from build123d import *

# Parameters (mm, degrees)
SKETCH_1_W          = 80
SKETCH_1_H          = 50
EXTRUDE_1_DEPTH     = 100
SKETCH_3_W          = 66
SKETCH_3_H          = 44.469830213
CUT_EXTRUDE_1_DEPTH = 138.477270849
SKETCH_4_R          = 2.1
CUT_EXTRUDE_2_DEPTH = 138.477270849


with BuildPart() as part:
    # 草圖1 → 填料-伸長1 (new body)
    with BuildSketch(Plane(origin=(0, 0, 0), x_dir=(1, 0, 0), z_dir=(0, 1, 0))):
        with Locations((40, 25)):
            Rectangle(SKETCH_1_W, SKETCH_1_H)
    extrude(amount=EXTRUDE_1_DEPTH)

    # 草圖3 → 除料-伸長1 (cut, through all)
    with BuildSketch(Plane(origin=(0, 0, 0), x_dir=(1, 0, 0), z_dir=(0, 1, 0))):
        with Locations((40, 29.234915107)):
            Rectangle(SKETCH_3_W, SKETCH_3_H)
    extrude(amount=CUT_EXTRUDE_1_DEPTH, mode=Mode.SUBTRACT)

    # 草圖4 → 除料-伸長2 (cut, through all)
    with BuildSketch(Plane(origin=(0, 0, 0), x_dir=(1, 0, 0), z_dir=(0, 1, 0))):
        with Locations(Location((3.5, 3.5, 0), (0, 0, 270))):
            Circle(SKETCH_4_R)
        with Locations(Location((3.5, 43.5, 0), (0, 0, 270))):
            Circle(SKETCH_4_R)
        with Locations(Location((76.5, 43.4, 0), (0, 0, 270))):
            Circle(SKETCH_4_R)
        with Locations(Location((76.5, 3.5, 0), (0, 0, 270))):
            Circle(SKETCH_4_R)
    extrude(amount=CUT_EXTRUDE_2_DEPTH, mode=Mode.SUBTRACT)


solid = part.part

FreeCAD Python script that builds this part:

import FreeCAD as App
import Part
import Sketcher
from FreeCAD import Vector
Q = App.Units.Quantity

doc = App.newDocument("Part")
body = doc.addObject("PartDesign::Body", "Body")

# Sketch on XZ plane
sketch1 = body.newObject("Sketcher::SketchObject", "Sketch")
sketch1.AttachmentSupport = (doc.getObject("XZ_Plane"), [""])
sketch1.MapMode = "FlatFace"
sketch1.addGeometry([
    Part.LineSegment(Vector(0, -50, 0), Vector(0, 0, 0)),
    Part.LineSegment(Vector(0, 0, 0), Vector(80, 0, 0)),
    Part.LineSegment(Vector(80, 0, 0), Vector(80, -50, 0)),
    Part.LineSegment(Vector(80, -50, 0), Vector(0, -50, 0)),
], False)
sketch1.addConstraint([
    Sketcher.Constraint("Coincident", 0, 2, 1, 1),
    Sketcher.Constraint("Coincident", 1, 2, 2, 1),
    Sketcher.Constraint("Coincident", 2, 2, 3, 1),
    Sketcher.Constraint("Coincident", 3, 2, 0, 1),
    Sketcher.Constraint("Vertical", 0),
    Sketcher.Constraint("Horizontal", 1),
    Sketcher.Constraint("Vertical", 2),
    Sketcher.Constraint("Horizontal", 3),
    Sketcher.Constraint("Coincident", 0, 2, -1, 1),
    Sketcher.Constraint("DistanceX", 1, 1, 1, 2, Q("80 mm")),
    Sketcher.Constraint("DistanceY", 0, 1, 0, 2, Q("50 mm")),
])
pad1 = body.newObject("PartDesign::Pad", "Pad")
pad1.Profile = sketch1
pad1.Length = 100
pad1.Reversed = True

# Sketch on XZ plane
sketch2 = body.newObject("Sketcher::SketchObject", "Sketch001")
sketch2.AttachmentSupport = (doc.getObject("XZ_Plane"), [""])
sketch2.MapMode = "FlatFace"
sketch2.addGeometry([
    Part.LineSegment(Vector(7, -51.46983, 0), Vector(7, -7, 0)),
    Part.LineSegment(Vector(7, -7, 0), Vector(73, -7, 0)),
    Part.LineSegment(Vector(73, -7, 0), Vector(73, -51.46983, 0)),
    Part.LineSegment(Vector(73, -51.46983, 0), Vector(7, -51.46983, 0)),
], False)
sketch2.addConstraint([
    Sketcher.Constraint("Coincident", 0, 2, 1, 1),
    Sketcher.Constraint("Coincident", 1, 2, 2, 1),
    Sketcher.Constraint("Coincident", 2, 2, 3, 1),
    Sketcher.Constraint("Coincident", 3, 2, 0, 1),
    Sketcher.Constraint("Vertical", 0),
    Sketcher.Constraint("Horizontal", 1),
    Sketcher.Constraint("Vertical", 2),
    Sketcher.Constraint("Horizontal", 3),
    Sketcher.Constraint("DistanceX", 1, 1, 1, 2, Q("66 mm")),
    Sketcher.Constraint("DistanceX", -1, 1, 0, 2, Q("7 mm")),
    Sketcher.Constraint("DistanceY", 0, 2, -1, 1, Q("7 mm")),
    Sketcher.Constraint("DistanceY", 0, 1, 0, 2, Q("44.46983 mm")),
])
pocket1 = body.newObject("PartDesign::Pocket", "Pocket")
pocket1.Profile = sketch2
pocket1.Type = "ThroughAll"

# Sketch on XZ plane
sketch3 = body.newObject("Sketcher::SketchObject", "Sketch002")
sketch3.AttachmentSupport = (doc.getObject("XZ_Plane"), [""])
sketch3.MapMode = "FlatFace"
sketch3.addGeometry([
    Part.Circle(Vector(3.5, -3.5, 0), Vector(0, 0, 1), 2.1),
    Part.Circle(Vector(3.5, -43.5, 0), Vector(0, 0, 1), 2.1),
    Part.Circle(Vector(76.5, -43.4, 0), Vector(0, 0, 1), 2.1),
    Part.Circle(Vector(76.5, -3.5, 0), Vector(0, 0, 1), 2.1),
], False)
sketch3.addConstraint([
    Sketcher.Constraint("Equal", 0, 1),
    Sketcher.Constraint("Equal", 1, 2),
    Sketcher.Constraint("Equal", 2, 3),
    Sketcher.Constraint("Horizontal", 0, 3, 3, 3),
    Sketcher.Constraint("Vertical", 0, 3, 1, 3),
    Sketcher.Constraint("Vertical", 2, 3, 3, 3),
    Sketcher.Constraint("Diameter", 0, Q("4.2 mm")),
    Sketcher.Constraint("DistanceY", 1, 3, 0, 3, Q("40 mm")),
    Sketcher.Constraint("DistanceX", 1, 3, 2, 3, Q("73 mm")),
    Sketcher.Constraint("DistanceX", -1, 1, 0, 3, Q("3.5 mm")),
    Sketcher.Constraint("DistanceY", 0, 3, -1, 1, Q("3.5 mm")),
    Sketcher.Constraint("DistanceY", 2, 3, -1, 1, Q("43.4 mm")),
])
pocket2 = body.newObject("PartDesign::Pocket", "Pocket001")
pocket2.Profile = sketch3
pocket2.Type = "ThroughAll"

doc.recompute()
